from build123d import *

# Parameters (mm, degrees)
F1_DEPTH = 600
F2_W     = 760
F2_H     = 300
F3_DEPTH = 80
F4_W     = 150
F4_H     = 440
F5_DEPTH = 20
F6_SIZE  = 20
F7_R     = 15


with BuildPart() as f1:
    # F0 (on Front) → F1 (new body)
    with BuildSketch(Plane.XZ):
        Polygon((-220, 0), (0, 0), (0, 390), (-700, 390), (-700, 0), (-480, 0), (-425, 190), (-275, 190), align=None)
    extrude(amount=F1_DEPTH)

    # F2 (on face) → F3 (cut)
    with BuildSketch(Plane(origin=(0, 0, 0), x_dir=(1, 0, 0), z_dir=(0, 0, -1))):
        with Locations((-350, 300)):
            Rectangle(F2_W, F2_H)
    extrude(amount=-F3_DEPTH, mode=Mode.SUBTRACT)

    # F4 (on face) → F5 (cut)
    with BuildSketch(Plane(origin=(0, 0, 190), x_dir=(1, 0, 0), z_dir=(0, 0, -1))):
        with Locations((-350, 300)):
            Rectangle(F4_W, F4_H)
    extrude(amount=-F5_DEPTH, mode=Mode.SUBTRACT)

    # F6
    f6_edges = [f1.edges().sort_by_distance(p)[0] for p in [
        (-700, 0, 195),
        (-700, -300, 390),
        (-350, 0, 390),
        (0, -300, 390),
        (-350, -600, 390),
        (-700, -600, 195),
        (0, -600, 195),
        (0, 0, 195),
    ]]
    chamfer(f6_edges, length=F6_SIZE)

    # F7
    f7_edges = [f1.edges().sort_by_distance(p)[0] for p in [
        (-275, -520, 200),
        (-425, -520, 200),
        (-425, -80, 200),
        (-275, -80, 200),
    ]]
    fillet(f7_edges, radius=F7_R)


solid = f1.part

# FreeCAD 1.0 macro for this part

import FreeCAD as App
import Part
import Sketcher
from FreeCAD import Vector
Q = App.Units.Quantity


def edges_at(feature, points):
    """Names of the edges that pass closest to the given points."""
    edges = feature.Shape.Edges
    near = lambda p: min(range(len(edges)), key=lambda i: edges[i].distToShape(Part.Vertex(*p))[0])
    return sorted({f"Edge{near(p) + 1}" for p in points})

doc = App.newDocument("Part")
body = doc.addObject("PartDesign::Body", "Body")

# Sketch on XZ plane
sketch1 = body.newObject("Sketcher::SketchObject", "Sketch")
sketch1.AttachmentSupport = (doc.getObject("XZ_Plane"), [""])
sketch1.MapMode = "FlatFace"
sketch1.addGeometry([
    Part.LineSegment(Vector(-220, 0, 0), Vector(0, 0, 0)),  # 0
    Part.LineSegment(Vector(0, 0, 0), Vector(0, 390, 0)),  # 1
    Part.LineSegment(Vector(0, 390, 0), Vector(-700, 390, 0)),  # 2
    Part.LineSegment(Vector(-700, 390, 0), Vector(-700, 0, 0)),  # 3
    Part.LineSegment(Vector(-700, 0, 0), Vector(-480, 0, 0)),  # 4
    Part.LineSegment(Vector(-480, 0, 0), Vector(-425, 190, 0)),  # 5
    Part.LineSegment(Vector(-425, 190, 0), Vector(-275, 190, 0)),  # 6
    Part.LineSegment(Vector(-275, 190, 0), Vector(-220, 0, 0)),  # 7
], False)
sketch1.addConstraint([
    Sketcher.Constraint("Coincident", 0, 2, 1, 1),
    Sketcher.Constraint("Coincident", 1, 2, 2, 1),
    Sketcher.Constraint("Coincident", 2, 2, 3, 1),
    Sketcher.Constraint("Coincident", 3, 2, 4, 1),
    Sketcher.Constraint("Coincident", 4, 2, 5, 1),
    Sketcher.Constraint("Coincident", 5, 2, 6, 1),
    Sketcher.Constraint("Coincident", 6, 2, 7, 1),
    Sketcher.Constraint("Coincident", 7, 2, 0, 1),
    Sketcher.Constraint("Horizontal", 0),
    Sketcher.Constraint("Vertical", 1),
    Sketcher.Constraint("Horizontal", 2),
    Sketcher.Constraint("Vertical", 3),
    Sketcher.Constraint("Horizontal", 4),
    Sketcher.Constraint("Horizontal", 6),
    Sketcher.Constraint("Coincident", 0, 2, -1, 1),
    Sketcher.Constraint("PointOnObject", 3, 2, -1),
    Sketcher.Constraint("Equal", 0, 4),
    Sketcher.Constraint("Equal", 5, 7),
    Sketcher.Constraint("DistanceX", 0, 1, 0, 2, Q("220 mm")),
    Sketcher.Constraint("DistanceX", 2, 2, 2, 1, Q("700 mm")),
    Sketcher.Constraint("DistanceX", 6, 1, 6, 2, Q("150 mm")),
    Sketcher.Constraint("DistanceY", 1, 1, 1, 2, Q("390 mm")),
    Sketcher.Constraint("DistanceY", -1, 1, 5, 2, Q("190 mm")),
])
pad1 = body.newObject("PartDesign::Pad", "Pad")
pad1.Profile = sketch1
pad1.Length = 600

# Sketch on XY plane
sketch2 = body.newObject("Sketcher::SketchObject", "Sketch001")
sketch2.AttachmentSupport = (doc.getObject("XY_Plane"), [""])
sketch2.MapMode = "FlatFace"
sketch2.addGeometry([
    Part.LineSegment(Vector(-730, -450, 0), Vector(-730, -150, 0)),
    Part.LineSegment(Vector(-730, -150, 0), Vector(30, -150, 0)),
    Part.LineSegment(Vector(30, -150, 0), Vector(30, -450, 0)),
    Part.LineSegment(Vector(30, -450, 0), Vector(-730, -450, 0)),
], False)
sketch2.addConstraint([
    Sketcher.Constraint("Coincident", 0, 2, 1, 1),
    Sketcher.Constraint("Coincident", 1, 2, 2, 1),
    Sketcher.Constraint("Coincident", 2, 2, 3, 1),
    Sketcher.Constraint("Coincident", 3, 2, 0, 1),
    Sketcher.Constraint("Vertical", 0),
    Sketcher.Constraint("Horizontal", 1),
    Sketcher.Constraint("Vertical", 2),
    Sketcher.Constraint("Horizontal", 3),
    Sketcher.Constraint("DistanceX", 1, 1, 1, 2, Q("760 mm")),
    Sketcher.Constraint("DistanceY", 0, 1, 0, 2, Q("300 mm")),
    Sketcher.Constraint("DistanceX", 0, 2, -1, 1, Q("730 mm")),
    Sketcher.Constraint("DistanceY", 0, 2, -1, 1, Q("150 mm")),
])
pocket1 = body.newObject("PartDesign::Pocket", "Pocket")
pocket1.Profile = sketch2
pocket1.Length = 80
pocket1.Reversed = True

# Sketch on XY plane
sketch3 = body.newObject("Sketcher::SketchObject", "Sketch002")
sketch3.AttachmentSupport = (doc.getObject("XY_Plane"), [""])
sketch3.MapMode = "FlatFace"
sketch3.AttachmentOffset = App.Placement(Vector(0, 0, 190), App.Rotation())
sketch3.addGeometry([
    Part.LineSegment(Vector(-425, -520, 0), Vector(-425, -80, 0)),
    Part.LineSegment(Vector(-425, -80, 0), Vector(-275, -80, 0)),
    Part.LineSegment(Vector(-275, -80, 0), Vector(-275, -520, 0)),
    Part.LineSegment(Vector(-275, -520, 0), Vector(-425, -520, 0)),
], False)
sketch3.addConstraint([
    Sketcher.Constraint("Coincident", 0, 2, 1, 1),
    Sketcher.Constraint("Coincident", 1, 2, 2, 1),
    Sketcher.Constraint("Coincident", 2, 2, 3, 1),
    Sketcher.Constraint("Coincident", 3, 2, 0, 1),
    Sketcher.Constraint("Vertical", 0),
    Sketcher.Constraint("Horizontal", 1),
    Sketcher.Constraint("Vertical", 2),
    Sketcher.Constraint("Horizontal", 3),
    Sketcher.Constraint("DistanceX", 1, 1, 1, 2, Q("150 mm")),
    Sketcher.Constraint("DistanceY", 0, 1, 0, 2, Q("440 mm")),
    Sketcher.Constraint("DistanceX", 0, 2, -1, 1, Q("425 mm")),
    Sketcher.Constraint("DistanceY", 0, 2, -1, 1, Q("80 mm")),
])
pocket2 = body.newObject("PartDesign::Pocket", "Pocket001")
pocket2.Profile = sketch3
pocket2.Length = 20
pocket2.Reversed = True
doc.recompute()

chamfer = body.newObject("PartDesign::Chamfer", "Chamfer")
chamfer.Base = (pocket2, edges_at(pocket2, [
    (-700, 0, 195),
    (-700, -300, 390),
    (-350, 0, 390),
    (0, -300, 390),
    (-350, -600, 390),
    (-700, -600, 195),
    (0, -600, 195),
    (0, 0, 195),
]))
chamfer.Size = 20
doc.recompute()

fillet = body.newObject("PartDesign::Fillet", "Fillet")
fillet.Base = (chamfer, edges_at(chamfer, [
    (-275, -520, 200),
    (-425, -520, 200),
    (-425, -80, 200),
    (-275, -80, 200),
]))
fillet.Radius = 15

doc.recompute()
